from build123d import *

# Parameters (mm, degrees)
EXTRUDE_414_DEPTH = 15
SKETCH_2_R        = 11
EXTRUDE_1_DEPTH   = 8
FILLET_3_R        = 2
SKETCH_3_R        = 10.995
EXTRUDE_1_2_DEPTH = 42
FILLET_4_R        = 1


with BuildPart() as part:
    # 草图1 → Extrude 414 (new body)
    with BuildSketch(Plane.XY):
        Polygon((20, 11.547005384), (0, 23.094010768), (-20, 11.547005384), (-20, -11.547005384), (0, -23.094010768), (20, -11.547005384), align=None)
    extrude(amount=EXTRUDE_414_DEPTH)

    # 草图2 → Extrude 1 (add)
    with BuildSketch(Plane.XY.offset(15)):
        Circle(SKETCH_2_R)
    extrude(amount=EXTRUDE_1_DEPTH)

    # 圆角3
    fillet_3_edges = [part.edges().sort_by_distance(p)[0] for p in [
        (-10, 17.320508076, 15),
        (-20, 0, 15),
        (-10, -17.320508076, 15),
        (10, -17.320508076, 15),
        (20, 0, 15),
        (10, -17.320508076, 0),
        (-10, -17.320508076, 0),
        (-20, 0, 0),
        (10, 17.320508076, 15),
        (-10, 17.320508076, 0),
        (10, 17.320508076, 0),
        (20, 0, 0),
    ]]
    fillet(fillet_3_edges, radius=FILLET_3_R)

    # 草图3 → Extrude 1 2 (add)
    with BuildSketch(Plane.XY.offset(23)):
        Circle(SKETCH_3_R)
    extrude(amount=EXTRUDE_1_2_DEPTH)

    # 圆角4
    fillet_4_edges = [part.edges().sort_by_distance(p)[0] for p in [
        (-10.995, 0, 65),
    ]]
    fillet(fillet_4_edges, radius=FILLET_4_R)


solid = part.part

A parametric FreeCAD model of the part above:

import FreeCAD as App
import Part
import Sketcher

V = App.Vector
Q = App.Units.Quantity


def edges_at(feature, points):
    """Names of the edges that pass closest to the given points."""
    edges = feature.Shape.Edges
    near = lambda p: min(range(len(edges)), key=lambda i: edges[i].distToShape(Part.Vertex(*p))[0])
    return sorted({f"Edge{near(p) + 1}" for p in points})

doc = App.newDocument("Part")
body = doc.addObject("PartDesign::Body", "Body")

# Sketch on XY plane
sketch1 = body.newObject("Sketcher::SketchObject", "Sketch")
sketch1.AttachmentSupport = (doc.getObject("XY_Plane"), [""])
sketch1.MapMode = "FlatFace"
sketch1.addGeometry([
    Part.LineSegment(V(20, 12, 0), V(0, 23, 0)),  # 0
    Part.LineSegment(V(0, 23, 0), V(-20, 12, 0)),  # 1
    Part.LineSegment(V(-20, 12, 0), V(-20, -12, 0)),  # 2
    Part.LineSegment(V(-20, -12, 0), V(0, -23, 0)),  # 3
    Part.LineSegment(V(0, -23, 0), V(20, -12, 0)),  # 4
    Part.LineSegment(V(20, -12, 0), V(20, 12, 0)),  # 5
], False)
sketch1.addConstraint([
    Sketcher.Constraint("Coincident", 0, 2, 1, 1),
    Sketcher.Constraint("Coincident", 1, 2, 2, 1),
    Sketcher.Constraint("Coincident", 2, 2, 3, 1),
    Sketcher.Constraint("Coincident", 3, 2, 4, 1),
    Sketcher.Constraint("Coincident", 4, 2, 5, 1),
    Sketcher.Constraint("Coincident", 5, 2, 0, 1),
    Sketcher.Constraint("Vertical", 2),
    Sketcher.Constraint("Vertical", 5),
    Sketcher.Constraint("Symmetric", 0, 2, 3, 2, -1, 1),
    Sketcher.Constraint("Symmetric", 1, 2, 4, 2, -1, 1),
    Sketcher.Constraint("PointOnObject", 0, 2, -2),
    Sketcher.Constraint("Parallel", 0, 3),
    Sketcher.Constraint("Horizontal", 2, 2, 4, 2),
    Sketcher.Constraint("Angle", 0, Q("150 deg")),
    Sketcher.Constraint("DistanceX", 1, 2, -1, 1, 20.0),
    Sketcher.Constraint("DistanceY", 2, 2, 2, 1, 23.094011),
])
pad1 = body.newObject("PartDesign::Pad", "Pad")
pad1.Profile = sketch1
pad1.Length = 15

# Sketch on XY plane
sketch2 = body.newObject("Sketcher::SketchObject", "Sketch001")
sketch2.AttachmentSupport = (doc.getObject("XY_Plane"), [""])
sketch2.MapMode = "FlatFace"
sketch2.AttachmentOffset = App.Placement(V(0, 0, 15), App.Rotation())
sketch2.addGeometry(Part.Circle(V(0, 0, 0), V(0, 0, 1), 11), False)
sketch2.addConstraint([
    Sketcher.Constraint("Coincident", 0, 3, -1, 1),
    Sketcher.Constraint("Diameter", 0, 22.0),
])
pad2 = body.newObject("PartDesign::Pad", "Pad001")
pad2.Profile = sketch2
pad2.Length = 8
doc.recompute()

fillet = body.newObject("PartDesign::Fillet", "Fillet")
fillet.Base = (pad2, edges_at(pad2, [
    (-10, 17.321, 15),
    (-20, 0, 15),
    (-10, -17.321, 15),
    (10, -17.321, 15),
    (20, 0, 15),
    (10, -17.321, 0),
    (-10, -17.321, 0),
    (-20, 0, 0),
    (10, 17.321, 15),
    (-10, 17.321, 0),
    (10, 17.321, 0),
    (20, 0, 0),
]))
fillet.Radius = 2

# Sketch on XY plane
sketch3 = body.newObject("Sketcher::SketchObject", "Sketch002")
sketch3.AttachmentSupport = (doc.getObject("XY_Plane"), [""])
sketch3.MapMode = "FlatFace"
sketch3.AttachmentOffset = App.Placement(V(0, 0, 23), App.Rotation())
sketch3.addGeometry(Part.Circle(V(0, 0, 0), V(0, 0, 1), 11), False)
sketch3.addConstraint([
    Sketcher.Constraint("Coincident", 0, 3, -1, 1),
    Sketcher.Constraint("Diameter", 0, 21.99),
])
pad3 = body.newObject("PartDesign::Pad", "Pad002")
pad3.Profile = sketch3
pad3.Length = 42
doc.recompute()

fillet2 = body.newObject("PartDesign::Fillet", "Fillet001")
fillet2.Base = (pad3, edges_at(pad3, [(-10.995, 0, 65)]))
fillet2.Radius = 1

doc.recompute()
